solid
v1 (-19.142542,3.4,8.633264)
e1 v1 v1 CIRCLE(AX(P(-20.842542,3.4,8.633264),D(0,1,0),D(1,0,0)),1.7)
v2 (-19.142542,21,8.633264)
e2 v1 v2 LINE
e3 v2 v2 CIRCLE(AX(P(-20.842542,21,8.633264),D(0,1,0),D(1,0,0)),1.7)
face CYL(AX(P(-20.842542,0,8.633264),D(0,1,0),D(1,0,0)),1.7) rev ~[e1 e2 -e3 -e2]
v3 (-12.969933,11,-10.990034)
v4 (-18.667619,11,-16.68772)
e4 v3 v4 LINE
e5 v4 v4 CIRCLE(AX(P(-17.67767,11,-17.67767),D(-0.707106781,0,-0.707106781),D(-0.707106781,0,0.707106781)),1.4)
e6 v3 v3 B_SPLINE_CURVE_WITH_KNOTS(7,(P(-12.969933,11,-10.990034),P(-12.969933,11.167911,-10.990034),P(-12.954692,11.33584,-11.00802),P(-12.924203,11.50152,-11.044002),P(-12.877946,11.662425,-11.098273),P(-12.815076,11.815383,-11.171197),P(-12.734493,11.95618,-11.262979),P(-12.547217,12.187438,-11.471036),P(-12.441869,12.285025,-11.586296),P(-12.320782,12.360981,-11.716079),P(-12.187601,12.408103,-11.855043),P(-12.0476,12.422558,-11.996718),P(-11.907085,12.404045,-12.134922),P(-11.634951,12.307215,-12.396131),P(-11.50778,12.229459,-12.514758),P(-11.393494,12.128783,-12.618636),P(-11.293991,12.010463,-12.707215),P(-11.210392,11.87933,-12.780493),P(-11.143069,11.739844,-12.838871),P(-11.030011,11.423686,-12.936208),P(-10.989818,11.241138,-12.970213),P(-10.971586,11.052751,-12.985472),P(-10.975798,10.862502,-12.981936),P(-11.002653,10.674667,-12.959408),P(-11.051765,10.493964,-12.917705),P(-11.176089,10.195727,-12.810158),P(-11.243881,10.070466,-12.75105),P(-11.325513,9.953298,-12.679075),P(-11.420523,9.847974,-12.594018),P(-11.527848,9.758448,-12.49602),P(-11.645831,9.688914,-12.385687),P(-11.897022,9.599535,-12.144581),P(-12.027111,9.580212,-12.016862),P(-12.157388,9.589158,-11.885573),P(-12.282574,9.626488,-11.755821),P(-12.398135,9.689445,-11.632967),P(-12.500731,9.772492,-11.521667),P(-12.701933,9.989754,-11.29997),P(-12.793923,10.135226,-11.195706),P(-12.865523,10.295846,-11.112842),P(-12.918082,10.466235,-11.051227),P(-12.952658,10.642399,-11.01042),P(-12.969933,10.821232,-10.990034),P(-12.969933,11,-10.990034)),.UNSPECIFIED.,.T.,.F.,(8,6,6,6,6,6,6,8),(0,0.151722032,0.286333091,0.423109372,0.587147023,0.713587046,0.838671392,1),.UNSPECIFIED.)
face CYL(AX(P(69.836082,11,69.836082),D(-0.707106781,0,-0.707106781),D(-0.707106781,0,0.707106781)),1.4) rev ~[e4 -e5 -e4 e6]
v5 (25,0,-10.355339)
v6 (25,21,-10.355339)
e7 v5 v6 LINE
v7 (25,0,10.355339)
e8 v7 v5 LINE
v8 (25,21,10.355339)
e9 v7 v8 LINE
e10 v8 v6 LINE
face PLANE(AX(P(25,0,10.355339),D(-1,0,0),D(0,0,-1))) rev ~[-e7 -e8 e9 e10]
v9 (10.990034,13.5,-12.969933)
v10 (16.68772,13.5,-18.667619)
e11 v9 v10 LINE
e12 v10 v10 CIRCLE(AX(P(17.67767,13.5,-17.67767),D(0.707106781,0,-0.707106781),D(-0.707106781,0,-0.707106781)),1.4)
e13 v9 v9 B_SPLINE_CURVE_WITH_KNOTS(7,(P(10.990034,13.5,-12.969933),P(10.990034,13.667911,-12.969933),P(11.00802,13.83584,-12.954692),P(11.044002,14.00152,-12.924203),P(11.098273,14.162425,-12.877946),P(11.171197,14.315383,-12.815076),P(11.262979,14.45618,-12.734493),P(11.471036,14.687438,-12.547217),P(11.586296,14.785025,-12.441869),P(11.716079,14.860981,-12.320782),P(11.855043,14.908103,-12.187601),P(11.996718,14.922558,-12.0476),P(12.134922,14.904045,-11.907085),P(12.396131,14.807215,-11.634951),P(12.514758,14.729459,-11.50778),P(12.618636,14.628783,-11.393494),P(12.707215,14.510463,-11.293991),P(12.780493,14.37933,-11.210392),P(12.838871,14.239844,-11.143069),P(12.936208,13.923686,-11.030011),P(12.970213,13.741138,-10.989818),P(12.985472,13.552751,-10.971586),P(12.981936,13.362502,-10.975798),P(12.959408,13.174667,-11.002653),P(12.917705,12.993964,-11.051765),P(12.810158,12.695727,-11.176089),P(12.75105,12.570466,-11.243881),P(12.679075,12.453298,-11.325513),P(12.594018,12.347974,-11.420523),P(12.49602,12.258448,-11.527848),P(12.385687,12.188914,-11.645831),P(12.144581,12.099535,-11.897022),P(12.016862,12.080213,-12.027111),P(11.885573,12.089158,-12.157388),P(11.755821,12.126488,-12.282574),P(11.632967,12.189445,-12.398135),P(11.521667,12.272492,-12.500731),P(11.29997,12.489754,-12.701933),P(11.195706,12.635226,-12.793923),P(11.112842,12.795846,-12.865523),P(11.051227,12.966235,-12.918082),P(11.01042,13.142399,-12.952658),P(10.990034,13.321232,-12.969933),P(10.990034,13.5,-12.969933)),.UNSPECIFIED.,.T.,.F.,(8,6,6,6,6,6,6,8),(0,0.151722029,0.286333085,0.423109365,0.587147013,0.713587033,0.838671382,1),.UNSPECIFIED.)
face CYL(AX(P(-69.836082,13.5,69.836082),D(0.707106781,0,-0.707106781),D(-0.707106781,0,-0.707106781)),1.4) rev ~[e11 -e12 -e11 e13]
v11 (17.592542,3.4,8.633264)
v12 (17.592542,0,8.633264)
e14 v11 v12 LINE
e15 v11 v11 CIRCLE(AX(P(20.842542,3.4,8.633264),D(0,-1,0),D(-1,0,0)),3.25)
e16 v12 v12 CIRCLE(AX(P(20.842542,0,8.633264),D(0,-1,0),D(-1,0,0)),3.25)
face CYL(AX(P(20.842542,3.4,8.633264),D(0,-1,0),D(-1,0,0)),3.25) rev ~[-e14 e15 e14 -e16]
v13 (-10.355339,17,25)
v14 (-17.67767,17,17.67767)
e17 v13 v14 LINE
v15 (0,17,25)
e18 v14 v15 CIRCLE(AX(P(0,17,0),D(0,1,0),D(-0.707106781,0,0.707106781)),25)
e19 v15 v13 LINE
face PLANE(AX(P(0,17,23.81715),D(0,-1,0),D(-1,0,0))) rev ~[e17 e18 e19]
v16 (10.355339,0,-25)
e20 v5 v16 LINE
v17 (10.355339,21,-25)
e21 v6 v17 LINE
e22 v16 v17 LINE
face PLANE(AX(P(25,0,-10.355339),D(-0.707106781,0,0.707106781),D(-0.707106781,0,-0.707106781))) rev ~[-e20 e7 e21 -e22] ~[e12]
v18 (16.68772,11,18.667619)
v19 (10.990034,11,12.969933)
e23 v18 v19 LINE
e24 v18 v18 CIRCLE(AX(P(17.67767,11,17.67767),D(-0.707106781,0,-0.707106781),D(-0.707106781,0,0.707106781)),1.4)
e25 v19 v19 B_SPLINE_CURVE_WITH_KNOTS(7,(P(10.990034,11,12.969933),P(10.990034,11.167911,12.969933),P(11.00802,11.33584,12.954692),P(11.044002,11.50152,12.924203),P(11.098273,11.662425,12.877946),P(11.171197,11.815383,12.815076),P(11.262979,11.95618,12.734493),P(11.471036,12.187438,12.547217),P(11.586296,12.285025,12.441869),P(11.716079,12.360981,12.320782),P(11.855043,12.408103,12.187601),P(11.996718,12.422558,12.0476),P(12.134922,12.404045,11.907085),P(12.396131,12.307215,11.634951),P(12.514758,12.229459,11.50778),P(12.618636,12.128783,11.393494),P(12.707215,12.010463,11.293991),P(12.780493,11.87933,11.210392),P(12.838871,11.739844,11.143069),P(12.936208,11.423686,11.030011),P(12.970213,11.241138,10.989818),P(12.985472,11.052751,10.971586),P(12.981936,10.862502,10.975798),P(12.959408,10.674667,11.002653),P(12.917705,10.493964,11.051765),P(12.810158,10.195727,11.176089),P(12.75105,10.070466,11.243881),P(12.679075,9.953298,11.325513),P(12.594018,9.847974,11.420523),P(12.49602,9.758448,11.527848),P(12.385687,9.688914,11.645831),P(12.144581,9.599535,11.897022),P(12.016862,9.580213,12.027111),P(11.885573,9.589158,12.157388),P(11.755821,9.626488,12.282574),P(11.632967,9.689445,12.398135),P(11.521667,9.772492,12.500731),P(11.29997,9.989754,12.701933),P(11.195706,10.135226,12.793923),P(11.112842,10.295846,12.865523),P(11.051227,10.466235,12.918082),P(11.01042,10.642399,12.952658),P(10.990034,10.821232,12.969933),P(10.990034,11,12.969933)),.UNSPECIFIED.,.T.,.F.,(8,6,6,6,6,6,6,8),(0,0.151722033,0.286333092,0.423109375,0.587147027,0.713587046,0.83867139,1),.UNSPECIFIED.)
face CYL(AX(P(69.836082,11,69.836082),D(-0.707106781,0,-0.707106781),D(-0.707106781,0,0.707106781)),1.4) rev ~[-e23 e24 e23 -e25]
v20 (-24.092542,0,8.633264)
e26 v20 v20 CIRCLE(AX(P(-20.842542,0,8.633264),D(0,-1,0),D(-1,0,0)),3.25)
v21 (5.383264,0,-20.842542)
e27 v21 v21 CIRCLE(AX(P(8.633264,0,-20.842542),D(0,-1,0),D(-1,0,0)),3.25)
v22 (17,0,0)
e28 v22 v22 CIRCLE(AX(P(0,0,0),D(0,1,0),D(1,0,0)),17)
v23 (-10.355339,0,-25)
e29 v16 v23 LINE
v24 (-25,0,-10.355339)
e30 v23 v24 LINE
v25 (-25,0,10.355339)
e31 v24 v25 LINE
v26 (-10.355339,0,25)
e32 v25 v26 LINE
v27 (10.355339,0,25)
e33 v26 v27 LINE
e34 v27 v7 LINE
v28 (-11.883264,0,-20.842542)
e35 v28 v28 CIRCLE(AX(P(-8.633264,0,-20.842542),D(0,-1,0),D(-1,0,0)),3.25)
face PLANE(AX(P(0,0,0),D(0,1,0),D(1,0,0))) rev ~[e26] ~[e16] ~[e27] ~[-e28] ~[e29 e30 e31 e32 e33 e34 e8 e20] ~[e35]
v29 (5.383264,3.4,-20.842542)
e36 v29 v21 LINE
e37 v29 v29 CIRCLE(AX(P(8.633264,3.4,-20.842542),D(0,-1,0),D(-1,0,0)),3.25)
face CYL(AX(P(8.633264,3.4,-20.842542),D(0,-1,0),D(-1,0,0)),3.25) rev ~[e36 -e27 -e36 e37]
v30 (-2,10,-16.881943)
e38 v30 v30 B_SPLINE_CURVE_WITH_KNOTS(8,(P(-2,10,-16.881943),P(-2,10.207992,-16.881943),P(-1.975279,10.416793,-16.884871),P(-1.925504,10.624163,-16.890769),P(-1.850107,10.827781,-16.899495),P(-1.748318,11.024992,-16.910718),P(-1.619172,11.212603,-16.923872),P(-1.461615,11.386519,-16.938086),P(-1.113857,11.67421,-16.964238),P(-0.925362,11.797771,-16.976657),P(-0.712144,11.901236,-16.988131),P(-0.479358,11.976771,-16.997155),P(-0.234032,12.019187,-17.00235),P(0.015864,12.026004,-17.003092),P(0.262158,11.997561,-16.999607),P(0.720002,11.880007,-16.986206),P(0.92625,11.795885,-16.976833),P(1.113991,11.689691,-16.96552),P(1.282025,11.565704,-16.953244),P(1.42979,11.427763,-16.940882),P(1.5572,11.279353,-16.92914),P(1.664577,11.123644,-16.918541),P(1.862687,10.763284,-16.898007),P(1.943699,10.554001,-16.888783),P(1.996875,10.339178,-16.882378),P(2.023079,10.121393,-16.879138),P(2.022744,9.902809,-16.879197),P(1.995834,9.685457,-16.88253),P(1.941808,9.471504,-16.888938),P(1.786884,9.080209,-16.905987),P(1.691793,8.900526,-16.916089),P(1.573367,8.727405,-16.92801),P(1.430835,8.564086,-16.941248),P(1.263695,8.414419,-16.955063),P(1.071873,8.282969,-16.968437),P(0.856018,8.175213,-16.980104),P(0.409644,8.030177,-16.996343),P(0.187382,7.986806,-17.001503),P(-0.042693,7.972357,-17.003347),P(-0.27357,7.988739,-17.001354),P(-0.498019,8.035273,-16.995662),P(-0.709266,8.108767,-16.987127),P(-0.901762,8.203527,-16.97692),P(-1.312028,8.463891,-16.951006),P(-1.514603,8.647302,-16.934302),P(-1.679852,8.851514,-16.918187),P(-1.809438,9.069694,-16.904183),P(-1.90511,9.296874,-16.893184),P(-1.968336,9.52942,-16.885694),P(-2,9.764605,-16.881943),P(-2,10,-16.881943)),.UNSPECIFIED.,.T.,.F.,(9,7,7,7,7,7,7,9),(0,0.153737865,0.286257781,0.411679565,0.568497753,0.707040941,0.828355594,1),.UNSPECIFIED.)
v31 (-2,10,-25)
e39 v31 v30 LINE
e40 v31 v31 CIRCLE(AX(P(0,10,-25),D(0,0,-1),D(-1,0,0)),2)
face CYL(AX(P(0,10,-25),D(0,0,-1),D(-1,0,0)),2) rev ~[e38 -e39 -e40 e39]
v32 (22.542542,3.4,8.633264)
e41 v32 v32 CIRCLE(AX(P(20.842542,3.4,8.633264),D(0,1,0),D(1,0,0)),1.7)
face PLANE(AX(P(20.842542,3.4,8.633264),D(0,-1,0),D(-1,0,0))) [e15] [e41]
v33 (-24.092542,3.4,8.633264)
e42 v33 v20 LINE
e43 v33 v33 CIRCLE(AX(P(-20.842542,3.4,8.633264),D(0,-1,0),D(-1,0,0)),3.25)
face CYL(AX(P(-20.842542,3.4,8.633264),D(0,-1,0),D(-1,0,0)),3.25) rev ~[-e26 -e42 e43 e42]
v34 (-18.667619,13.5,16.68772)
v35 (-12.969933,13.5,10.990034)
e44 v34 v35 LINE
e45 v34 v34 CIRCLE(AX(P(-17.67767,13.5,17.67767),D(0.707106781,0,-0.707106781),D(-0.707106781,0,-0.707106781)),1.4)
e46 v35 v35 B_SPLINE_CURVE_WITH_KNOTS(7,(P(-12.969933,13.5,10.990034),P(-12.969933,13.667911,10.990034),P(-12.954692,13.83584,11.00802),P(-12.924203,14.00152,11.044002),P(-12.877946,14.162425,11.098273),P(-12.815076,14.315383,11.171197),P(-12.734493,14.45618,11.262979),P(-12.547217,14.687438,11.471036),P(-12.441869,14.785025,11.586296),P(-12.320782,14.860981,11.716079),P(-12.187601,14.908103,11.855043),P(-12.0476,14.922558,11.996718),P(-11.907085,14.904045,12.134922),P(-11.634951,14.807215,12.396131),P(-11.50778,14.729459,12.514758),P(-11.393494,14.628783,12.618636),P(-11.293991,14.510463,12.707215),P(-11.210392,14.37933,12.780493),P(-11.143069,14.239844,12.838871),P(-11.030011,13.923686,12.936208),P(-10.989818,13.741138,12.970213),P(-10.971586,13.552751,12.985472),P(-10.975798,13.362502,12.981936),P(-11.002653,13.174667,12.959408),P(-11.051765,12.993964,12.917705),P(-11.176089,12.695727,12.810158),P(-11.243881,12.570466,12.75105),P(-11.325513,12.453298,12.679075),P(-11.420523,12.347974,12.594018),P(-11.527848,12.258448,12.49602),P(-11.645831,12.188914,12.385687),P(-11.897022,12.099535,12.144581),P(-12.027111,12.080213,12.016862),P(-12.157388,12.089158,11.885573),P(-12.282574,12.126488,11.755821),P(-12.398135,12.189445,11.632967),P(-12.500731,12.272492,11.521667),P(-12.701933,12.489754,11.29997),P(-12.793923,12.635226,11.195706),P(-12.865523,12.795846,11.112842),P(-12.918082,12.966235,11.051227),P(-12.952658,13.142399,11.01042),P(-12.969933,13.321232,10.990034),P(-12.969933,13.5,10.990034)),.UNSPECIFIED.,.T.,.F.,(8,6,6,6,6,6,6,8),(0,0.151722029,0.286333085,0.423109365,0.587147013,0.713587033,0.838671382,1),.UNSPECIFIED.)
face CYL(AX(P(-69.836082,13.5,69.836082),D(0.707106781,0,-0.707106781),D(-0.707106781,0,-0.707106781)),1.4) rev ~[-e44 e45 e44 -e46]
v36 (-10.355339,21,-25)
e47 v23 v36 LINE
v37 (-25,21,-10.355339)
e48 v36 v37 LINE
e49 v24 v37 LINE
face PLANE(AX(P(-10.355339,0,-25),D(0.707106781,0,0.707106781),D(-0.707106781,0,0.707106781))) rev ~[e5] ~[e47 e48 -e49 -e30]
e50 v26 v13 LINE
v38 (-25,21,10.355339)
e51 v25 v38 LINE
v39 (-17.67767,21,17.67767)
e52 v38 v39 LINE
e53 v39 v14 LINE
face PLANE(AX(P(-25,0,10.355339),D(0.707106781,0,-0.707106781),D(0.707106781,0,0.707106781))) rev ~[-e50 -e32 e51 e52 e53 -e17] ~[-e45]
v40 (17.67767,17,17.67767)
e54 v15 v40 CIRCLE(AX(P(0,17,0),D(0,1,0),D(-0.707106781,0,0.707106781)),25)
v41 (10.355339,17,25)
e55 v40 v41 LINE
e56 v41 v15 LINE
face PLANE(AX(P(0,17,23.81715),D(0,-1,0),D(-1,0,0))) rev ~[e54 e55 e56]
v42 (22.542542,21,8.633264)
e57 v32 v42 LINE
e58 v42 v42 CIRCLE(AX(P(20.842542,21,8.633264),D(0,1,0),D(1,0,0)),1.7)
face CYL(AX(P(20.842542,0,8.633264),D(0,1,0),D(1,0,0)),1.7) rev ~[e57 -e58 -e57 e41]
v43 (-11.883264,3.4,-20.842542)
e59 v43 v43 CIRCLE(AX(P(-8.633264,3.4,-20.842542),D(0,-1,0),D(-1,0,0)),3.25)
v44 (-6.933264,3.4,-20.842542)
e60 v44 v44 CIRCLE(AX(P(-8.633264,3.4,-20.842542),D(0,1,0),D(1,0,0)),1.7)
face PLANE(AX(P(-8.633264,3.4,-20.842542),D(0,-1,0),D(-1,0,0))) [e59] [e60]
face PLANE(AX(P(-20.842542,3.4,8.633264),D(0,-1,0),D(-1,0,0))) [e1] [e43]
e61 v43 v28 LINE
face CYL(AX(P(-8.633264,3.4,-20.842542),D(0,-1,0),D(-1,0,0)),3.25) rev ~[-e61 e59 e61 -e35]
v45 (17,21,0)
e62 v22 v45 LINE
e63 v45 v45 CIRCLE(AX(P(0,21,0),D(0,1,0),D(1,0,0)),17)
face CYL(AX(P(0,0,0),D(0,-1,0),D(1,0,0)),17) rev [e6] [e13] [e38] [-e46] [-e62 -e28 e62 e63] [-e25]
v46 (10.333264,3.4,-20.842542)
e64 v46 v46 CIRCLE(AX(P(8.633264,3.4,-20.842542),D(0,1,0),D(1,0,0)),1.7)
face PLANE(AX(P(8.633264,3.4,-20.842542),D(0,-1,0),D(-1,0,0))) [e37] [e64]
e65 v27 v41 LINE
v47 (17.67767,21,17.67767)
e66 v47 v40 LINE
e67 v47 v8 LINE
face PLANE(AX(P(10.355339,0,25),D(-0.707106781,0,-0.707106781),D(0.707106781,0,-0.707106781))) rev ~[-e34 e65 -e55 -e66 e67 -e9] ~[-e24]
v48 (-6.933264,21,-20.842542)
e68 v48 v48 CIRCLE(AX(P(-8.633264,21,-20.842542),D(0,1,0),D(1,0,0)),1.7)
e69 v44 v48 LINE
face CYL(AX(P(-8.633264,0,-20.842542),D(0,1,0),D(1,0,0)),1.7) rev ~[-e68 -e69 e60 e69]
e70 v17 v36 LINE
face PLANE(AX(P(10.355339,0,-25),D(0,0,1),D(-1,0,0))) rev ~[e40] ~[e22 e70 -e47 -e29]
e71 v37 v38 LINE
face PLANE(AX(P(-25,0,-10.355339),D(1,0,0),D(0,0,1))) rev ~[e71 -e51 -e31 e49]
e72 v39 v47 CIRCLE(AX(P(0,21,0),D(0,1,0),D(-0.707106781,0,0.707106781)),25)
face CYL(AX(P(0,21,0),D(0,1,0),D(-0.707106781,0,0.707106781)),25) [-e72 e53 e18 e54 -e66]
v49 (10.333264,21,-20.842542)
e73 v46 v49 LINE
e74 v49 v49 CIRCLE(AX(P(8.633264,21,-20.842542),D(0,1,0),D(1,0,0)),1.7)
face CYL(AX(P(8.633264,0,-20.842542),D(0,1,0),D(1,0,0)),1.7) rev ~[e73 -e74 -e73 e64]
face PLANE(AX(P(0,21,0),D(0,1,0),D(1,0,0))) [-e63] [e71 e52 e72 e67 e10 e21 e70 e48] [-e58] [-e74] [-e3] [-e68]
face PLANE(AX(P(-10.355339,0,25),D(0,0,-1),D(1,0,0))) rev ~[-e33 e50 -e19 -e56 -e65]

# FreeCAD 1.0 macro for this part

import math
import FreeCAD as App
import Part
import Sketcher
from FreeCAD import Vector


def add_polygon(sketch, points):
    """Adds a closed chain of lines whose ends are joined by coincident constraints."""
    first, n = sketch.GeometryCount, len(points)
    for a, b in zip(points, points[1:] + points[:1]):
        sketch.addGeometry(Part.LineSegment(App.Vector(*a, 0), App.Vector(*b, 0)), False)
    for i in range(n):
        sketch.addConstraint(Sketcher.Constraint("Coincident", first + i, 2, first + (i + 1) % n, 1))

doc = App.newDocument("Part")
params = doc.addObject("Spreadsheet::Sheet", "Params")
for row, (alias, value) in enumerate([
    ("sketch1_diameter", "34 mm"),
    ("pad1_length", "21 mm"),
    ("sketch2_diameter", "3.4 mm"),
    ("hole_diameter", "3.4 mm"),
    ("hole_depth", "21 mm"),
    ("hole_cbore_diameter", "6.5 mm"),
    ("hole_cbore_depth", "3.4 mm"),
    ("sketch3_diameter", "2.8 mm"),
    ("hole2_diameter", "2.8 mm"),
    ("sketch4_diameter", "2.8 mm"),
    ("hole3_diameter", "2.8 mm"),
    ("sketch5_diameter", "4 mm"),
    ("sketch6_radius", "25 mm"),
    ("pocket2_length", "4 mm"),
], start=1):
    params.set(f"A{row}", alias)
    params.set(f"B{row}", "=" + value)
    params.setAlias(f"B{row}", alias)

body = doc.addObject("PartDesign::Body", "Body")

# Sketch on XZ plane
sketch1 = doc.addObject("Sketcher::SketchObject", "Sketch")
body.addObject(sketch1)
sketch1.AttachmentSupport = (doc.XZ_Plane, [""])
sketch1.MapMode = "FlatFace"
add_polygon(sketch1, [(25, 10), (25, -10), (10, -25), (-10, -25), (-25, -10), (-25, 10), (-10, 25), (10, 25)])  # lines 0-7
sketch1.addGeometry(Part.Circle(Vector(0, 0, 0), Vector(0, 0, 1), 17), False)  # 8
sketch1.addConstraint([
    Sketcher.Constraint("Vertical", 0),
    Sketcher.Constraint("Horizontal", 2),
    Sketcher.Constraint("Vertical", 4),
    Sketcher.Constraint("Horizontal", 6),
    Sketcher.Constraint("Coincident", 8, 3, -1, 1),
    Sketcher.Constraint("Symmetric", 0, 2, 4, 2, -1, 1),
    Sketcher.Constraint("Symmetric", 1, 2, 5, 2, -1, 1),
    Sketcher.Constraint("Perpendicular", 1, 3),
    Sketcher.Constraint("Perpendicular", 5, 7),
    Sketcher.Constraint("Horizontal", 0, 2, 3, 2),
    Sketcher.Constraint("Horizontal", 4, 2, 7, 2),
    Sketcher.Constraint("Vertical", 2, 2, 5, 2),
    Sketcher.Constraint("Equal", 6, 0),
    Sketcher.Constraint("Diameter", 8, 34.0),
    Sketcher.Constraint("DistanceX", -1, 1, 0, 2, 25.0),
    Sketcher.Constraint("DistanceX", 2, 2, 2, 1, 20.710678),
])
sketch1.setExpression("Constraints[21]", "Params.sketch1_diameter")
pad1 = doc.addObject("PartDesign::Pad", "Pad")
body.addObject(pad1)
pad1.Profile = sketch1
pad1.setExpression("Length", "Params.pad1_length")
pad1.Reversed = True

# Sketch on XZ plane
sketch2 = doc.addObject("Sketcher::SketchObject", "Sketch001")
body.addObject(sketch2)
sketch2.AttachmentSupport = (doc.XZ_Plane, [""])
sketch2.MapMode = "FlatFace"
sketch2.addGeometry([
    Part.Circle(Vector(-20.8, 8.6, 0), Vector(0, 0, 1), 1.7),
    Part.Circle(Vector(20.8, 8.6, 0), Vector(0, 0, 1), 1.7),
    Part.Circle(Vector(-8.6, -20.8, 0), Vector(0, 0, 1), 1.7),
    Part.Circle(Vector(8.6, -20.8, 0), Vector(0, 0, 1), 1.7),
], False)
sketch2.addConstraint([
    Sketcher.Constraint("Equal", 0, 1),
    Sketcher.Constraint("Equal", 1, 2),
    Sketcher.Constraint("Equal", 2, 3),
    Sketcher.Constraint("Symmetric", 0, 3, 1, 3, -2),
    Sketcher.Constraint("Symmetric", 2, 3, 3, 3, -2),
    Sketcher.Constraint("Diameter", 0, 3.4),
    Sketcher.Constraint("DistanceX", 0, 3, 2, 3, 12.209278),
    Sketcher.Constraint("DistanceX", 0, 3, -1, 1, 20.842542),
    Sketcher.Constraint("DistanceY", -1, 1, 0, 3, 8.633264),
    Sketcher.Constraint("DistanceY", 2, 3, -1, 1, 20.842542),
])
sketch2.setExpression("Constraints[5]", "Params.sketch2_diameter")
doc.recompute()
hole = doc.addObject("PartDesign::Hole", "Hole")
body.addObject(hole)
hole.Profile = sketch2
hole.ThreadType = "None"
hole.setExpression("Diameter", "Params.hole_diameter")
hole.DepthType = "Dimension"
hole.setExpression("Depth", "Params.hole_depth")
hole.DrillPoint = "Flat"
hole.HoleCutType = "Counterbore"
hole.setExpression("HoleCutDiameter", "Params.hole_cbore_diameter")
hole.setExpression("HoleCutDepth", "Params.hole_cbore_depth")

# Sketch on an angled plane
sketch3 = doc.addObject("Sketcher::SketchObject", "Sketch002")
body.addObject(sketch3)
sketch3.Placement = App.Placement(Vector(17.67767, 0, 17.67767), App.Rotation(Vector(0.707106781, 0, -0.707106781), Vector(0, 0.999999999, 0), Vector(0.707106781, 0, 0.707106781), "ZXY"))
sketch3.addGeometry(Part.Circle(Vector(0, 11, 0), Vector(0, 0, 1), 1.4), False)
sketch3.addConstraint([
    Sketcher.Constraint("PointOnObject", 0, 3, -2),
    Sketcher.Constraint("Diameter", 0, 2.8),
    Sketcher.Constraint("DistanceY", -1, 1, 0, 3, 11.0),
])
sketch3.setExpression("Constraints[1]", "Params.sketch3_diameter")
doc.recompute()
hole2 = doc.addObject("PartDesign::Hole", "Hole001")
body.addObject(hole2)
hole2.Profile = sketch3
hole2.ThreadType = "None"
hole2.setExpression("Diameter", "Params.hole2_diameter")
hole2.DepthType = "ThroughAll"

# Sketch on an angled plane
sketch4 = doc.addObject("Sketcher::SketchObject", "Sketch003")
body.addObject(sketch4)
sketch4.Placement = App.Placement(Vector(-17.67767, 0, 17.67767), App.Rotation(Vector(0.707106781, 0, 0.707106781), Vector(0, 0.999999999, 0), Vector(-0.707106781, 0, 0.707106781), "ZXY"))
sketch4.addGeometry(Part.Circle(Vector(0, 13.5, 0), Vector(0, 0, 1), 1.4), False)
sketch4.addConstraint([
    Sketcher.Constraint("PointOnObject", 0, 3, -2),
    Sketcher.Constraint("Diameter", 0, 2.8),
    Sketcher.Constraint("DistanceY", -1, 1, 0, 3, 13.5),
])
sketch4.setExpression("Constraints[1]", "Params.sketch4_diameter")
doc.recompute()
hole3 = doc.addObject("PartDesign::Hole", "Hole002")
body.addObject(hole3)
hole3.Profile = sketch4
hole3.ThreadType = "None"
hole3.setExpression("Diameter", "Params.hole3_diameter")
hole3.DepthType = "ThroughAll"

# Sketch on XY plane
sketch5 = doc.addObject("Sketcher::SketchObject", "Sketch004")
body.addObject(sketch5)
sketch5.AttachmentSupport = (doc.XY_Plane, [""])
sketch5.MapMode = "FlatFace"
sketch5.AttachmentOffset = App.Placement(Vector(0, 0, -25), App.Rotation())
sketch5.addGeometry(Part.Circle(Vector(0, 10, 0), Vector(0, 0, 1), 2), False)
sketch5.addConstraint([
    Sketcher.Constraint("PointOnObject", 0, 3, -2),
    Sketcher.Constraint("Diameter", 0, 4.0),
    Sketcher.Constraint("DistanceY", -1, 1, 0, 3, 10.0),
])
sketch5.setExpression("Constraints[1]", "Params.sketch5_diameter")
pocket1 = doc.addObject("PartDesign::Pocket", "Pocket")
body.addObject(pocket1)
pocket1.Profile = sketch5
pocket1.Type = "UpToFirst"
pocket1.Reversed = True

# Sketch on XZ plane
sketch6 = doc.addObject("Sketcher::SketchObject", "Sketch005")
body.addObject(sketch6)
sketch6.AttachmentSupport = (doc.XZ_Plane, [""])
sketch6.MapMode = "FlatFace"
sketch6.AttachmentOffset = App.Placement(Vector(0, 0, -21), App.Rotation())
sketch6.addGeometry([
    Part.LineSegment(Vector(18, 27, 0), Vector(18, 18, 0)),
    Part.ArcOfCircle(Part.Circle(Vector(0, 0, 0), Vector(0, 0, 1), 25), math.radians(45), math.radians(135)),
    Part.LineSegment(Vector(-18, 18, 0), Vector(-18, 27, 0)),
    Part.LineSegment(Vector(-18, 27, 0), Vector(18, 27, 0)),
], False)
sketch6.addConstraint([
    Sketcher.Constraint("Coincident", 0, 2, 1, 1),
    Sketcher.Constraint("Coincident", 1, 2, 2, 1),
    Sketcher.Constraint("Coincident", 2, 2, 3, 1),
    Sketcher.Constraint("Coincident", 3, 2, 0, 1),
    Sketcher.Constraint("Vertical", 0),
    Sketcher.Constraint("Vertical", 2),
    Sketcher.Constraint("Horizontal", 3),
    Sketcher.Constraint("Coincident", 1, 3, -1, 1),
    Sketcher.Constraint("Horizontal", 0, 2, 1, 2),
    Sketcher.Constraint("Radius", 1, 25.0),
    Sketcher.Constraint("DistanceX", 3, 1, 3, 2, 35.355339),
    Sketcher.Constraint("DistanceY", 0, 2, 0, 1, 8.981975),
])
sketch6.setExpression("Constraints[9]", "Params.sketch6_radius")
pocket2 = doc.addObject("PartDesign::Pocket", "Pocket001")
body.addObject(pocket2)
pocket2.Profile = sketch6
pocket2.setExpression("Length", "Params.pocket2_length")
pocket2.Reversed = True

doc.recompute()
